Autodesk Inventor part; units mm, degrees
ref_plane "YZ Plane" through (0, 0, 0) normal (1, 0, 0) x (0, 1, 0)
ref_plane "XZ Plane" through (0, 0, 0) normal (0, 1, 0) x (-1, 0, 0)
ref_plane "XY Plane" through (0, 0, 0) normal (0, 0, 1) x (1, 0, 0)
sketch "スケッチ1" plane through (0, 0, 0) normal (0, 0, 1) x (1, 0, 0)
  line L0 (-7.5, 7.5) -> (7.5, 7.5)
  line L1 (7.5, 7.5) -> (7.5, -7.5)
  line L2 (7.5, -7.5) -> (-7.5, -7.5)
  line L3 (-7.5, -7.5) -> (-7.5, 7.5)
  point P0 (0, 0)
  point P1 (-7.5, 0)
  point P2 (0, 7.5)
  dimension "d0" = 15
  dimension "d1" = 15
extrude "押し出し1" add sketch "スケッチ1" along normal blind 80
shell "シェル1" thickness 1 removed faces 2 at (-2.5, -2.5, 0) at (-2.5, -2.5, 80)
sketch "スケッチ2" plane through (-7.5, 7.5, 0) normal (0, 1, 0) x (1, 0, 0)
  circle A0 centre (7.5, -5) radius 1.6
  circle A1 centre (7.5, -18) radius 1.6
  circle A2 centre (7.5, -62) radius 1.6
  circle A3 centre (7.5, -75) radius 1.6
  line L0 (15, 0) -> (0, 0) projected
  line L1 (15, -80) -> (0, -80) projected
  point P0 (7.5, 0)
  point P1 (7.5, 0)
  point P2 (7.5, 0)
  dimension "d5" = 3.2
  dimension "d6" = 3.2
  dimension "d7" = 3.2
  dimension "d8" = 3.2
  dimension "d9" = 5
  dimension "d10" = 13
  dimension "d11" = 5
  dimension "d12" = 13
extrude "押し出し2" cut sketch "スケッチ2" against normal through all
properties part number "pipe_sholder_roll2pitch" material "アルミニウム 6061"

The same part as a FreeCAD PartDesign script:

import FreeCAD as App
import Part
import Sketcher
Q = App.Units.Quantity


def faces_at(feature, points):
    """Names of the faces that lie closest to the given points."""
    faces = feature.Shape.Faces
    near = lambda p: min(range(len(faces)), key=lambda i: faces[i].distToShape(Part.Vertex(*p))[0])
    return sorted({f"Face{near(p) + 1}" for p in points})

doc = App.newDocument("Part")
body = doc.addObject("PartDesign::Body", "Body")

# Sketch on XY plane
sketch1 = body.newObject("Sketcher::SketchObject", "Sketch")
sketch1.AttachmentSupport = (doc.getObject("XY_Plane"), [""])
sketch1.MapMode = "FlatFace"
sketch1.addGeometry([
    Part.LineSegment(App.Vector(8, 8, 0), App.Vector(-8, 8, 0)),
    Part.LineSegment(App.Vector(-8, 8, 0), App.Vector(-8, -8, 0)),
    Part.LineSegment(App.Vector(-8, -8, 0), App.Vector(8, -8, 0)),
    Part.LineSegment(App.Vector(8, -8, 0), App.Vector(8, 8, 0)),
], False)
sketch1.addConstraint([
    Sketcher.Constraint("Coincident", 0, 2, 1, 1),
    Sketcher.Constraint("Coincident", 1, 2, 2, 1),
    Sketcher.Constraint("Coincident", 2, 2, 3, 1),
    Sketcher.Constraint("Coincident", 3, 2, 0, 1),
    Sketcher.Constraint("Horizontal", 0),
    Sketcher.Constraint("Vertical", 1),
    Sketcher.Constraint("Horizontal", 2),
    Sketcher.Constraint("Vertical", 3),
    Sketcher.Constraint("Symmetric", 0, 2, 2, 2, -1, 1),
    Sketcher.Constraint("Equal", 2, 1),
    Sketcher.Constraint("DistanceX", 0, 2, 0, 1, Q("15 mm")),
])
pad1 = body.newObject("PartDesign::Pad", "Pad")
pad1.Profile = sketch1
pad1.Length = 80
doc.recompute()

thickness = body.newObject("PartDesign::Thickness", "Thickness")
thickness.Base = (pad1, faces_at(pad1, [(-2.5, -2.5, 0), (-2.5, -2.5, 80)]))
thickness.Value = 1
thickness.Reversed = True
thickness.Join = "Intersection"

# Sketch on XZ plane
sketch2 = body.newObject("Sketcher::SketchObject", "Sketch001")
sketch2.AttachmentSupport = (doc.getObject("XZ_Plane"), [""])
sketch2.MapMode = "FlatFace"
sketch2.AttachmentOffset = App.Placement(App.Vector(0, 0, -7.5), App.Rotation())
sketch2.addGeometry([
    Part.Circle(App.Vector(0, 5, 0), App.Vector(0, 0, 1), 1.6),
    Part.Circle(App.Vector(0, 18, 0), App.Vector(0, 0, 1), 1.6),
    Part.Circle(App.Vector(0, 62, 0), App.Vector(0, 0, 1), 1.6),
    Part.Circle(App.Vector(0, 75, 0), App.Vector(0, 0, 1), 1.6),
], False)
sketch2.addConstraint([
    Sketcher.Constraint("Equal", 0, 1),
    Sketcher.Constraint("Equal", 1, 2),
    Sketcher.Constraint("Equal", 2, 3),
    Sketcher.Constraint("PointOnObject", 0, 3, -2),
    Sketcher.Constraint("PointOnObject", 1, 3, -2),
    Sketcher.Constraint("PointOnObject", 2, 3, -2),
    Sketcher.Constraint("PointOnObject", 3, 3, -2),
    Sketcher.Constraint("Diameter", 0, Q("3.2 mm")),
    Sketcher.Constraint("DistanceY", -1, 1, 0, 3, Q("5 mm")),
    Sketcher.Constraint("DistanceY", 0, 3, 1, 3, Q("13 mm")),
    Sketcher.Constraint("DistanceY", 2, 3, 3, 3, Q("13 mm")),
    Sketcher.Constraint("DistanceY", -1, 1, 2, 3, Q("62 mm")),
])
pocket1 = body.newObject("PartDesign::Pocket", "Pocket")
pocket1.Profile = sketch2
pocket1.Type = "ThroughAll"
pocket1.Reversed = True

doc.recompute()
